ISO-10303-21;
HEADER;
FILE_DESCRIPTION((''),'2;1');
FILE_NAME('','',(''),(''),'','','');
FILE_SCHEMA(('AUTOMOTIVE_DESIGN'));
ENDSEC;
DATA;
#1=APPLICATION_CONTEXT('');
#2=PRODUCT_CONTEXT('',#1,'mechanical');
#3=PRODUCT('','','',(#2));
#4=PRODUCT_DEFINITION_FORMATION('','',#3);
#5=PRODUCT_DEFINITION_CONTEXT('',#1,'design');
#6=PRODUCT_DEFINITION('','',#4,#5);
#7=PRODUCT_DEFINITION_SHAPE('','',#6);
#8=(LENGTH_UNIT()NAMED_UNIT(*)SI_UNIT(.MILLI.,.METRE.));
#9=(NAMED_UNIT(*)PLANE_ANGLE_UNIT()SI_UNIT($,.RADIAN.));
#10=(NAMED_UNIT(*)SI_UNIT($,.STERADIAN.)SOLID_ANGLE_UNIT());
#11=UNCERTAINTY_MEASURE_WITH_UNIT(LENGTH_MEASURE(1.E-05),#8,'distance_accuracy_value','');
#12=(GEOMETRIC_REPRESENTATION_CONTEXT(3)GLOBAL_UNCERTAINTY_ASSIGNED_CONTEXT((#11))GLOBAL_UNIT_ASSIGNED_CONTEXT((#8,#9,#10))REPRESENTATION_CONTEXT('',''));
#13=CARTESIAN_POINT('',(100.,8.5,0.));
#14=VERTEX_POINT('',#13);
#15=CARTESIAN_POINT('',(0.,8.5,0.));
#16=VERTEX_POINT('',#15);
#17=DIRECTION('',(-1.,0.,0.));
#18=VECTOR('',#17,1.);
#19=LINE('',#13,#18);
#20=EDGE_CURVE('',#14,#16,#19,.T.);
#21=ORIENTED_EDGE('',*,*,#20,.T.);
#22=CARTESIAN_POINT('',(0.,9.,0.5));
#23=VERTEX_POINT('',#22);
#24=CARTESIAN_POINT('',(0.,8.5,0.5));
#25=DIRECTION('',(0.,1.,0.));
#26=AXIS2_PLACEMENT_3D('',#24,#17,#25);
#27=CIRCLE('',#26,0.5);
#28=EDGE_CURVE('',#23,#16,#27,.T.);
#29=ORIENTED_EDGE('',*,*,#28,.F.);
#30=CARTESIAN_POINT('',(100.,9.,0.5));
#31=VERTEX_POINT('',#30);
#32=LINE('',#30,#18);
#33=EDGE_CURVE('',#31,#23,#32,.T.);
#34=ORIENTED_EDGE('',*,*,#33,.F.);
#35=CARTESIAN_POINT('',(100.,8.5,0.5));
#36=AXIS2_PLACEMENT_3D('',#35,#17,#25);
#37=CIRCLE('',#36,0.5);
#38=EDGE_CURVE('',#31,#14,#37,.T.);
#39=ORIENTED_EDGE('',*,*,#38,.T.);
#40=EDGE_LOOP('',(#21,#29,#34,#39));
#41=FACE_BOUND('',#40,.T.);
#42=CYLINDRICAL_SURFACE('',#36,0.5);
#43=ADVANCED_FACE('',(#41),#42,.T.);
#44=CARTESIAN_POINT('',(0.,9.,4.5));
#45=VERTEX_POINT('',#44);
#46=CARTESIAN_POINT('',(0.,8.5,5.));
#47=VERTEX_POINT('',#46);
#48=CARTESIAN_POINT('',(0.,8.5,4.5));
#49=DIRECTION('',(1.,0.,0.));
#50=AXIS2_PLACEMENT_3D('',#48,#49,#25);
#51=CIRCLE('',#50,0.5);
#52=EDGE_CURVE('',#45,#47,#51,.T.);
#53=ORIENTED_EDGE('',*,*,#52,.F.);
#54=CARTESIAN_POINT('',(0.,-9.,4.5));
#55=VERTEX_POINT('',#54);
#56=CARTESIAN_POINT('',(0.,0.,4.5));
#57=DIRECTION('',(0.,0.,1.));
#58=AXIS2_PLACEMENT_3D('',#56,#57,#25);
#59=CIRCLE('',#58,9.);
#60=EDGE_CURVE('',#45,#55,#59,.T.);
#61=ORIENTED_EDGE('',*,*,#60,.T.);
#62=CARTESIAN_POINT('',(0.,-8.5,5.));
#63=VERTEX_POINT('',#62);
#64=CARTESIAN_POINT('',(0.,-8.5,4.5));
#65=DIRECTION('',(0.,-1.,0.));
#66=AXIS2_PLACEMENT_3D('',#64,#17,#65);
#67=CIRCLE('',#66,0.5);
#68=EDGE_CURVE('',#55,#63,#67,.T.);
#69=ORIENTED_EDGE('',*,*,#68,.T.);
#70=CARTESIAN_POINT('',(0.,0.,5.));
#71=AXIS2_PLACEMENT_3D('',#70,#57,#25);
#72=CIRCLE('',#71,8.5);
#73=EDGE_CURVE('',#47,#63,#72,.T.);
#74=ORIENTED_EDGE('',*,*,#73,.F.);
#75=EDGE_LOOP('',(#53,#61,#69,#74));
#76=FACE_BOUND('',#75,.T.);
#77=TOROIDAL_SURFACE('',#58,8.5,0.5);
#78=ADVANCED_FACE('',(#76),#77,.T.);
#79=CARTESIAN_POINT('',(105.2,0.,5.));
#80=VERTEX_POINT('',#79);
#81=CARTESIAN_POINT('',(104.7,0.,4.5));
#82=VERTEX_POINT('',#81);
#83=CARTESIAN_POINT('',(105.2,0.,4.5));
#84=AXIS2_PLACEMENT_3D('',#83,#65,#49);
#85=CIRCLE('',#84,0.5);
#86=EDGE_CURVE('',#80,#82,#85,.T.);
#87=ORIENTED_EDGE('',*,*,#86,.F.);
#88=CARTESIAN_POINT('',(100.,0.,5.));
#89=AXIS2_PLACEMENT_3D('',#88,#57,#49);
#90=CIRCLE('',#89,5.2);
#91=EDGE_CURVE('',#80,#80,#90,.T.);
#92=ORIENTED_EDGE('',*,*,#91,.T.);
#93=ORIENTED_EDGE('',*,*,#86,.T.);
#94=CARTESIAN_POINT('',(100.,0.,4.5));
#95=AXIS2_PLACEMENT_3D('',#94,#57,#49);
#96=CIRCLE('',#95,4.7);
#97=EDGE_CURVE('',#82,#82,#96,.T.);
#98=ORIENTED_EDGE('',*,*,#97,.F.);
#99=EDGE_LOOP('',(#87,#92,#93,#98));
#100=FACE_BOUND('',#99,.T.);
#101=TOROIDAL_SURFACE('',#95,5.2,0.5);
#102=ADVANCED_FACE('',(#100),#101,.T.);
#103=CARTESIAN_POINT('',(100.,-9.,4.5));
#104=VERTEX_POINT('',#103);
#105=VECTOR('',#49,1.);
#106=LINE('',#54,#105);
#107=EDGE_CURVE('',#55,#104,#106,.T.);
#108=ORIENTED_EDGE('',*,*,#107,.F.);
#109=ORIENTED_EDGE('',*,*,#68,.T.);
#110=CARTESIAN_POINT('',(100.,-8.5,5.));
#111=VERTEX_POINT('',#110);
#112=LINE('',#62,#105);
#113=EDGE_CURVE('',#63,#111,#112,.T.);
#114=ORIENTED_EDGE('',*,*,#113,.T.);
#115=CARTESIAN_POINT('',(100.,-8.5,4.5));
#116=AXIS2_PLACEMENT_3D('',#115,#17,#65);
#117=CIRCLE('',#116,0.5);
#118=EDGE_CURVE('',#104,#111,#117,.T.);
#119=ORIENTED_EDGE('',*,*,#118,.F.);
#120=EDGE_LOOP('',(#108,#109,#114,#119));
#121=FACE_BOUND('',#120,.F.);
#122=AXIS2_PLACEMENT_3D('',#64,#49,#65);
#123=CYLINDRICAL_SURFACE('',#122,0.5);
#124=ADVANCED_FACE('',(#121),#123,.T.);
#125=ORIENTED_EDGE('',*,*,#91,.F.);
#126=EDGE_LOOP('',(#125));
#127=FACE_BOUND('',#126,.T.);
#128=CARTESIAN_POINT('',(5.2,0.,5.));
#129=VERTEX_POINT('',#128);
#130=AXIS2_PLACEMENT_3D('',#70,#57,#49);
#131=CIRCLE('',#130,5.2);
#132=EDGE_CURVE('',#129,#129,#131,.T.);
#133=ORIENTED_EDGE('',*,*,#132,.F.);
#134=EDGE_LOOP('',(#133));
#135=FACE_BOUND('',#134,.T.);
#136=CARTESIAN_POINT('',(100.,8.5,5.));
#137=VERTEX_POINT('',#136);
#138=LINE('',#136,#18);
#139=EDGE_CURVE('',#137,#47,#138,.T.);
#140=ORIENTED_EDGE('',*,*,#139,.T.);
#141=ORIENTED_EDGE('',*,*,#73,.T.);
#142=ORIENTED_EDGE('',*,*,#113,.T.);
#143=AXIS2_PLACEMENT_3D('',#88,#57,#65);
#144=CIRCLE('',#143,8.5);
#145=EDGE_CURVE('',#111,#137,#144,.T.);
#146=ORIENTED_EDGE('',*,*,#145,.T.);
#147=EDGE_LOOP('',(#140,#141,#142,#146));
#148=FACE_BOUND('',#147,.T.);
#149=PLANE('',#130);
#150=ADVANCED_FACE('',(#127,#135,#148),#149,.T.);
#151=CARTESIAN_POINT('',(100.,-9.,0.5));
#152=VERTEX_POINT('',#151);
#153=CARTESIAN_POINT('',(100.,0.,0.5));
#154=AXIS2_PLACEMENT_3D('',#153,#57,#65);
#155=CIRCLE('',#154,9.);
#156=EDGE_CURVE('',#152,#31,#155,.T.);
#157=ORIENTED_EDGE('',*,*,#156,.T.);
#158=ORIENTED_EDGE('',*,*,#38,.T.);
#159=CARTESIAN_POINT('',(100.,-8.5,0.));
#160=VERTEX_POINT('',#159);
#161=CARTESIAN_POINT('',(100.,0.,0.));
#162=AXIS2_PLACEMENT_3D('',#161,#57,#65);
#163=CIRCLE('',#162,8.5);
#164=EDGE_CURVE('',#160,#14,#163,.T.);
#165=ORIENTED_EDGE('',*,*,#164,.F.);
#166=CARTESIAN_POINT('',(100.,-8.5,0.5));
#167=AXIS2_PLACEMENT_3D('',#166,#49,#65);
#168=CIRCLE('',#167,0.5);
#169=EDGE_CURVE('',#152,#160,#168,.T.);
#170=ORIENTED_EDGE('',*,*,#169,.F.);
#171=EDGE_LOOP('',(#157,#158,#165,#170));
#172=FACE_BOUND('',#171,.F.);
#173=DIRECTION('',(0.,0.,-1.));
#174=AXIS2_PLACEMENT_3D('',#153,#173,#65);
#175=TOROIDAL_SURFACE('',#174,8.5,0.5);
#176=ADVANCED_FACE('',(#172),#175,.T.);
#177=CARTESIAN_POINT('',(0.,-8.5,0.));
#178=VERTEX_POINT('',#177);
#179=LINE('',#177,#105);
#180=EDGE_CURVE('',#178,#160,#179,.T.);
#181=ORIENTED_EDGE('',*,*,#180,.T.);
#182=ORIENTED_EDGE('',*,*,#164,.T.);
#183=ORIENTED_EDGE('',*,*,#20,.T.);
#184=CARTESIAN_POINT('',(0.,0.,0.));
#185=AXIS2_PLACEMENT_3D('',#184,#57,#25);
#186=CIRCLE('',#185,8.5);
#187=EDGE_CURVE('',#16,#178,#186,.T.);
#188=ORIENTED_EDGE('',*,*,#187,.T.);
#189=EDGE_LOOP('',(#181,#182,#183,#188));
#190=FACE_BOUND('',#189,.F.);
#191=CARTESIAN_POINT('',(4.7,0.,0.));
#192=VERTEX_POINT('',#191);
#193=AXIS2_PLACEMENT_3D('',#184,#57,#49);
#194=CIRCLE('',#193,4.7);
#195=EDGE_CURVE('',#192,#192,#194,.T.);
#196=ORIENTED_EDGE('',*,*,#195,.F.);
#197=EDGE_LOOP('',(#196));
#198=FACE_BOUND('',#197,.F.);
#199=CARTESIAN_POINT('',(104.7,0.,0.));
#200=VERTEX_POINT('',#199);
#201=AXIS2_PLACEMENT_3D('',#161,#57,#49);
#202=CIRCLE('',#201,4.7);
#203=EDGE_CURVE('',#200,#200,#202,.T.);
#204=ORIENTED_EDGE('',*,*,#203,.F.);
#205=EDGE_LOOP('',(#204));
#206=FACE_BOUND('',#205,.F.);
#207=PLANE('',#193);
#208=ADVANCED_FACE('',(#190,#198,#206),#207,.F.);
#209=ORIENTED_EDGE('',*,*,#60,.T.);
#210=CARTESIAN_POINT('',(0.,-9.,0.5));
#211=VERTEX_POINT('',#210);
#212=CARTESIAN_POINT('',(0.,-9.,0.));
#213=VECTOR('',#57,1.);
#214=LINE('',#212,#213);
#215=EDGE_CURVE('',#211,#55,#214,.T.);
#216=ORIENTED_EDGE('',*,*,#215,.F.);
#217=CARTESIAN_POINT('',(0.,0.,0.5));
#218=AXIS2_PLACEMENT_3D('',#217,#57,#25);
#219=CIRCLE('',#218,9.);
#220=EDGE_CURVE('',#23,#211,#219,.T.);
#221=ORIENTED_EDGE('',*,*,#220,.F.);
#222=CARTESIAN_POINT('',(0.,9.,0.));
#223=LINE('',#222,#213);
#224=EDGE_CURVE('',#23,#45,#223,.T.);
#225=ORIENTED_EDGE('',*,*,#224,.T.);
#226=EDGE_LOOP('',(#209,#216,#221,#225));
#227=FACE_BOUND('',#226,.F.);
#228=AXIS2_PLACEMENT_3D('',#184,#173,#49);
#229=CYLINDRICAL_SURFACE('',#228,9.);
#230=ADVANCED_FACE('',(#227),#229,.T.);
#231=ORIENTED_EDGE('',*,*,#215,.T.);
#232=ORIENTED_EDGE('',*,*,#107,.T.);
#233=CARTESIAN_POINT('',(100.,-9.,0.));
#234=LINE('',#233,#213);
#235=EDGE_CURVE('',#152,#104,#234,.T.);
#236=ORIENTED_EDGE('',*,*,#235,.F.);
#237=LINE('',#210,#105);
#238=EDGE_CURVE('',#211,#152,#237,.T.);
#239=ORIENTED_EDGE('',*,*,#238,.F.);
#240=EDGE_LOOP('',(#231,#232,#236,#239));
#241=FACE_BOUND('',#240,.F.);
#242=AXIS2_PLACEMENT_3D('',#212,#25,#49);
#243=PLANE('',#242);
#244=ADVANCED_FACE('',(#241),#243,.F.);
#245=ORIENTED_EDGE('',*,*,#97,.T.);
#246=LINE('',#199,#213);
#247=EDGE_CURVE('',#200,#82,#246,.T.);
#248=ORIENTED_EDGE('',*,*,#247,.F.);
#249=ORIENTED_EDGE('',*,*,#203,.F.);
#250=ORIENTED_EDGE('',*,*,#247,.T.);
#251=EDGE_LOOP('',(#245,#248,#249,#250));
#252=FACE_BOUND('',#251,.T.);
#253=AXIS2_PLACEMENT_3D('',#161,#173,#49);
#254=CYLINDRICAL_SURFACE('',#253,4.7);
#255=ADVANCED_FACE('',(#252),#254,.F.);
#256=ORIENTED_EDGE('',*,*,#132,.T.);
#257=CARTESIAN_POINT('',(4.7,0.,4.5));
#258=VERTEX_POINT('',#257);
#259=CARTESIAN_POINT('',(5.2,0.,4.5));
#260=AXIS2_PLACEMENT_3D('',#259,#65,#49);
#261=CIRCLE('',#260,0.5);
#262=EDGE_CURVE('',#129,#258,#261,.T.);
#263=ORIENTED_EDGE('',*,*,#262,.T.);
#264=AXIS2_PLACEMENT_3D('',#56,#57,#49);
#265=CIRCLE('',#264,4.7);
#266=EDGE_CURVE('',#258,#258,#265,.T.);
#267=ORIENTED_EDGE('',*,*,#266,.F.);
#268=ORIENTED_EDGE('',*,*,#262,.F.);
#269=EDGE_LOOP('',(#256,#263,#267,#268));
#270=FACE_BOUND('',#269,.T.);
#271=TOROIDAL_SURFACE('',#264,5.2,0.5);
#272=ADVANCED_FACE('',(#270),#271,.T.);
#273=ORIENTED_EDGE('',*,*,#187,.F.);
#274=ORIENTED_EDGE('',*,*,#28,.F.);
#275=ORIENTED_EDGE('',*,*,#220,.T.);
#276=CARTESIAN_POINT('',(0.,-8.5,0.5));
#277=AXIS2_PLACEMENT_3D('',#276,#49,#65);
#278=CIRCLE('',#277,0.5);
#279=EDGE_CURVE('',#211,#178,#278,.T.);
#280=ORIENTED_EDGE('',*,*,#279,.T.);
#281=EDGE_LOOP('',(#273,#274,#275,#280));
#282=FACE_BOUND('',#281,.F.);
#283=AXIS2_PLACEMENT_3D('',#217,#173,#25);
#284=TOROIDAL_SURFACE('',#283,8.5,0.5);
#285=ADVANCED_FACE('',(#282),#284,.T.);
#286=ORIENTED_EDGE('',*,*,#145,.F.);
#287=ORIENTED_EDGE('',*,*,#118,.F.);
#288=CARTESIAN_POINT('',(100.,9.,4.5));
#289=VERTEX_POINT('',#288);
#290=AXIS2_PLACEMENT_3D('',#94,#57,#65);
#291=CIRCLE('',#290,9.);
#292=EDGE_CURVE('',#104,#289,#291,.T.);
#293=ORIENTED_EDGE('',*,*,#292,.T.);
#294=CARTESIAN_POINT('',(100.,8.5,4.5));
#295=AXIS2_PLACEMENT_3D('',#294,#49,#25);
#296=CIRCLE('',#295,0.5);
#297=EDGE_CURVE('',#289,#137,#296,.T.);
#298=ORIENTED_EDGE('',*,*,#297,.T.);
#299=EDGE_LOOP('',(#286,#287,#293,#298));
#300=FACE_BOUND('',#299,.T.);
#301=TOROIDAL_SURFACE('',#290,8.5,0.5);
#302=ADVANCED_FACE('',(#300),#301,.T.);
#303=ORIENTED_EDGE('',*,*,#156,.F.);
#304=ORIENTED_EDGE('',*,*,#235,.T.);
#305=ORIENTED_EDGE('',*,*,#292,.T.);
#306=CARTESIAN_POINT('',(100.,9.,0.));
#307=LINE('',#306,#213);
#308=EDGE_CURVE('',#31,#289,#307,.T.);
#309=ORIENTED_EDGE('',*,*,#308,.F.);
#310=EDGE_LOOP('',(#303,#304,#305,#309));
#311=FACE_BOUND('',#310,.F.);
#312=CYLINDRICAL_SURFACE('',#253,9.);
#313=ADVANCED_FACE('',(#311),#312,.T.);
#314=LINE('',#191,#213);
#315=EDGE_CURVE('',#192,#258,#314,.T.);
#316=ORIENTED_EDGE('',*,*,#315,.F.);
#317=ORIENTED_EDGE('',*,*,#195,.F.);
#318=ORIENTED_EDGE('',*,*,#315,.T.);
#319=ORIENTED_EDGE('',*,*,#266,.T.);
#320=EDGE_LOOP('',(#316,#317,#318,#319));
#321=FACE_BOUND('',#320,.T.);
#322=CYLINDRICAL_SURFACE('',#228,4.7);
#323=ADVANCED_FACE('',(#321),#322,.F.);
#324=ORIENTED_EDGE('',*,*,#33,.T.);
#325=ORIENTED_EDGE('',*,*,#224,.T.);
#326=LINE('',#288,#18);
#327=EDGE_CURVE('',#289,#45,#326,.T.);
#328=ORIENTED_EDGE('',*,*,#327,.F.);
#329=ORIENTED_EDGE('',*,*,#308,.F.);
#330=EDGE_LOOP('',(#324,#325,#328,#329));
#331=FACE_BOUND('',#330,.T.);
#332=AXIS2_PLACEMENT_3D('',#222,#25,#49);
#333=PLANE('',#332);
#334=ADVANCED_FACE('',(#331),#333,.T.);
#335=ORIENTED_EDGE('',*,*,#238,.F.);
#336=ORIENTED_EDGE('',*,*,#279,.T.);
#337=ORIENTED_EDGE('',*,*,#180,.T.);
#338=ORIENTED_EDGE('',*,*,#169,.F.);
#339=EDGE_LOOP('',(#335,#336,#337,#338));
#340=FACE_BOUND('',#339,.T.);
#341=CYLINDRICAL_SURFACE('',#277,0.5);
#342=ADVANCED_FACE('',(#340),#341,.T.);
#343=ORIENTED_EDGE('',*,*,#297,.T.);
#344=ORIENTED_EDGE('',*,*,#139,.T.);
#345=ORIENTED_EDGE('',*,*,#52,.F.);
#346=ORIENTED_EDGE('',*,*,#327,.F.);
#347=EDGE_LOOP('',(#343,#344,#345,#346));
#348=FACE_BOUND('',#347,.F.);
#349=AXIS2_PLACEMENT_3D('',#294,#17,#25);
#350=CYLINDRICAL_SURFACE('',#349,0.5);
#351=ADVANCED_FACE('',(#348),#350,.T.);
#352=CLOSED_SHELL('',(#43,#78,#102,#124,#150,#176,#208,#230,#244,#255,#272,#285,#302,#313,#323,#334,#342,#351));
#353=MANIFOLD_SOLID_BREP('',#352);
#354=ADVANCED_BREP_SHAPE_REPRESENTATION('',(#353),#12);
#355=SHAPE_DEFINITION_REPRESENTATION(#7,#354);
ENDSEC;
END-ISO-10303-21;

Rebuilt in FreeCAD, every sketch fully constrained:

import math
import FreeCAD as App
import Part
import Sketcher
from FreeCAD import Vector
Q = App.Units.Quantity


def edges_at(feature, points):
    """Names of the edges that pass closest to the given points."""
    edges = feature.Shape.Edges
    near = lambda p: min(range(len(edges)), key=lambda i: edges[i].distToShape(Part.Vertex(*p))[0])
    return sorted({f"Edge{near(p) + 1}" for p in points})

doc = App.newDocument("Part")
params = doc.addObject("Spreadsheet::Sheet", "Params")
for row, (alias, value) in enumerate([
    ("sketch1_radius", "9 mm"),
    ("sketch1_diameter", "9.4 mm"),
    ("sketch1_width", "100 mm"),
    ("pad1_length", "5 mm"),
    ("fillet_radius", "0.5 mm"),
    ("fillet2_radius", "0.5 mm"),
], start=1):
    params.set(f"A{row}", alias)
    params.set(f"B{row}", "=" + value)
    params.setAlias(f"B{row}", alias)

body = doc.addObject("PartDesign::Body", "Body")

sketch1 = doc.addObject("Sketcher::SketchObject", "Sketch")
body.addObject(sketch1)
sketch1.AttachmentSupport = (doc.XY_Plane, [""])
sketch1.MapMode = "FlatFace"
sketch1.addGeometry(Part.ArcOfCircle(Part.Circle(Vector(0, 0, 0), Vector(0, 0, 1), 9), math.radians(90), math.radians(270)), False)
sketch1.addGeometry(Part.LineSegment(Vector(0, -9, 0), Vector(100, -9, 0)), False)
sketch1.addGeometry(Part.ArcOfCircle(Part.Circle(Vector(100, 0, 0), Vector(0, 0, 1), 9), math.radians(-90), math.radians(90)), False)
sketch1.addGeometry(Part.LineSegment(Vector(100, 9, 0), Vector(0, 9, 0)), False)
sketch1.addGeometry(Part.Circle(Vector(0, 0, 0), Vector(0, 0, 1), 4.7), False)
sketch1.addGeometry(Part.Circle(Vector(100, 0, 0), Vector(0, 0, 1), 4.7), False)
sketch1.addConstraint(Sketcher.Constraint("Tangent", 0, 2, 1, 1))
sketch1.addConstraint(Sketcher.Constraint("Tangent", 1, 2, 2, 1))
sketch1.addConstraint(Sketcher.Constraint("Tangent", 2, 2, 3, 1))
sketch1.addConstraint(Sketcher.Constraint("Tangent", 3, 2, 0, 1))
sketch1.addConstraint(Sketcher.Constraint("Horizontal", 1))
sketch1.addConstraint(Sketcher.Constraint("Horizontal", 3))
sketch1.addConstraint(Sketcher.Constraint("Coincident", 0, 3, -1, 1))
sketch1.addConstraint(Sketcher.Constraint("Coincident", 4, 3, -1, 1))
sketch1.addConstraint(Sketcher.Constraint("Coincident", 5, 3, 2, 3))
sketch1.addConstraint(Sketcher.Constraint("Equal", 4, 5))
sketch1.addConstraint(Sketcher.Constraint("Radius", 0, Q("9 mm")))
sketch1.addConstraint(Sketcher.Constraint("Diameter", 4, Q("9.4 mm")))
sketch1.addConstraint(Sketcher.Constraint("DistanceX", 1, 1, 1, 2, Q("100 mm")))
sketch1.setExpression("Constraints[10]", "Params.sketch1_radius")
sketch1.setExpression("Constraints[11]", "Params.sketch1_diameter")
sketch1.setExpression("Constraints[12]", "Params.sketch1_width")
pad1 = doc.addObject("PartDesign::Pad", "Pad")
body.addObject(pad1)
pad1.Profile = sketch1
pad1.setExpression("Length", "Params.pad1_length")
doc.recompute()

fillet = doc.addObject("PartDesign::Fillet", "Fillet")
body.addObject(fillet)
fillet.Base = (pad1, edges_at(pad1, [
    (50, -9, 5),
    (109, 0, 5),
    (50, 9, 5),
    (-9, 0, 5),
    (50, -9, 0),
    (109, 0, 0),
    (50, 9, 0),
    (-9, 0, 0),
]))
fillet.setExpression("Radius", "Params.fillet_radius")
doc.recompute()

fillet2 = doc.addObject("PartDesign::Fillet", "Fillet001")
body.addObject(fillet2)
fillet2.Base = (fillet, edges_at(fillet, [(-4.7, 0, 5), (95.3, 0, 5)]))
fillet2.setExpression("Radius", "Params.fillet2_radius")

doc.recompute()
